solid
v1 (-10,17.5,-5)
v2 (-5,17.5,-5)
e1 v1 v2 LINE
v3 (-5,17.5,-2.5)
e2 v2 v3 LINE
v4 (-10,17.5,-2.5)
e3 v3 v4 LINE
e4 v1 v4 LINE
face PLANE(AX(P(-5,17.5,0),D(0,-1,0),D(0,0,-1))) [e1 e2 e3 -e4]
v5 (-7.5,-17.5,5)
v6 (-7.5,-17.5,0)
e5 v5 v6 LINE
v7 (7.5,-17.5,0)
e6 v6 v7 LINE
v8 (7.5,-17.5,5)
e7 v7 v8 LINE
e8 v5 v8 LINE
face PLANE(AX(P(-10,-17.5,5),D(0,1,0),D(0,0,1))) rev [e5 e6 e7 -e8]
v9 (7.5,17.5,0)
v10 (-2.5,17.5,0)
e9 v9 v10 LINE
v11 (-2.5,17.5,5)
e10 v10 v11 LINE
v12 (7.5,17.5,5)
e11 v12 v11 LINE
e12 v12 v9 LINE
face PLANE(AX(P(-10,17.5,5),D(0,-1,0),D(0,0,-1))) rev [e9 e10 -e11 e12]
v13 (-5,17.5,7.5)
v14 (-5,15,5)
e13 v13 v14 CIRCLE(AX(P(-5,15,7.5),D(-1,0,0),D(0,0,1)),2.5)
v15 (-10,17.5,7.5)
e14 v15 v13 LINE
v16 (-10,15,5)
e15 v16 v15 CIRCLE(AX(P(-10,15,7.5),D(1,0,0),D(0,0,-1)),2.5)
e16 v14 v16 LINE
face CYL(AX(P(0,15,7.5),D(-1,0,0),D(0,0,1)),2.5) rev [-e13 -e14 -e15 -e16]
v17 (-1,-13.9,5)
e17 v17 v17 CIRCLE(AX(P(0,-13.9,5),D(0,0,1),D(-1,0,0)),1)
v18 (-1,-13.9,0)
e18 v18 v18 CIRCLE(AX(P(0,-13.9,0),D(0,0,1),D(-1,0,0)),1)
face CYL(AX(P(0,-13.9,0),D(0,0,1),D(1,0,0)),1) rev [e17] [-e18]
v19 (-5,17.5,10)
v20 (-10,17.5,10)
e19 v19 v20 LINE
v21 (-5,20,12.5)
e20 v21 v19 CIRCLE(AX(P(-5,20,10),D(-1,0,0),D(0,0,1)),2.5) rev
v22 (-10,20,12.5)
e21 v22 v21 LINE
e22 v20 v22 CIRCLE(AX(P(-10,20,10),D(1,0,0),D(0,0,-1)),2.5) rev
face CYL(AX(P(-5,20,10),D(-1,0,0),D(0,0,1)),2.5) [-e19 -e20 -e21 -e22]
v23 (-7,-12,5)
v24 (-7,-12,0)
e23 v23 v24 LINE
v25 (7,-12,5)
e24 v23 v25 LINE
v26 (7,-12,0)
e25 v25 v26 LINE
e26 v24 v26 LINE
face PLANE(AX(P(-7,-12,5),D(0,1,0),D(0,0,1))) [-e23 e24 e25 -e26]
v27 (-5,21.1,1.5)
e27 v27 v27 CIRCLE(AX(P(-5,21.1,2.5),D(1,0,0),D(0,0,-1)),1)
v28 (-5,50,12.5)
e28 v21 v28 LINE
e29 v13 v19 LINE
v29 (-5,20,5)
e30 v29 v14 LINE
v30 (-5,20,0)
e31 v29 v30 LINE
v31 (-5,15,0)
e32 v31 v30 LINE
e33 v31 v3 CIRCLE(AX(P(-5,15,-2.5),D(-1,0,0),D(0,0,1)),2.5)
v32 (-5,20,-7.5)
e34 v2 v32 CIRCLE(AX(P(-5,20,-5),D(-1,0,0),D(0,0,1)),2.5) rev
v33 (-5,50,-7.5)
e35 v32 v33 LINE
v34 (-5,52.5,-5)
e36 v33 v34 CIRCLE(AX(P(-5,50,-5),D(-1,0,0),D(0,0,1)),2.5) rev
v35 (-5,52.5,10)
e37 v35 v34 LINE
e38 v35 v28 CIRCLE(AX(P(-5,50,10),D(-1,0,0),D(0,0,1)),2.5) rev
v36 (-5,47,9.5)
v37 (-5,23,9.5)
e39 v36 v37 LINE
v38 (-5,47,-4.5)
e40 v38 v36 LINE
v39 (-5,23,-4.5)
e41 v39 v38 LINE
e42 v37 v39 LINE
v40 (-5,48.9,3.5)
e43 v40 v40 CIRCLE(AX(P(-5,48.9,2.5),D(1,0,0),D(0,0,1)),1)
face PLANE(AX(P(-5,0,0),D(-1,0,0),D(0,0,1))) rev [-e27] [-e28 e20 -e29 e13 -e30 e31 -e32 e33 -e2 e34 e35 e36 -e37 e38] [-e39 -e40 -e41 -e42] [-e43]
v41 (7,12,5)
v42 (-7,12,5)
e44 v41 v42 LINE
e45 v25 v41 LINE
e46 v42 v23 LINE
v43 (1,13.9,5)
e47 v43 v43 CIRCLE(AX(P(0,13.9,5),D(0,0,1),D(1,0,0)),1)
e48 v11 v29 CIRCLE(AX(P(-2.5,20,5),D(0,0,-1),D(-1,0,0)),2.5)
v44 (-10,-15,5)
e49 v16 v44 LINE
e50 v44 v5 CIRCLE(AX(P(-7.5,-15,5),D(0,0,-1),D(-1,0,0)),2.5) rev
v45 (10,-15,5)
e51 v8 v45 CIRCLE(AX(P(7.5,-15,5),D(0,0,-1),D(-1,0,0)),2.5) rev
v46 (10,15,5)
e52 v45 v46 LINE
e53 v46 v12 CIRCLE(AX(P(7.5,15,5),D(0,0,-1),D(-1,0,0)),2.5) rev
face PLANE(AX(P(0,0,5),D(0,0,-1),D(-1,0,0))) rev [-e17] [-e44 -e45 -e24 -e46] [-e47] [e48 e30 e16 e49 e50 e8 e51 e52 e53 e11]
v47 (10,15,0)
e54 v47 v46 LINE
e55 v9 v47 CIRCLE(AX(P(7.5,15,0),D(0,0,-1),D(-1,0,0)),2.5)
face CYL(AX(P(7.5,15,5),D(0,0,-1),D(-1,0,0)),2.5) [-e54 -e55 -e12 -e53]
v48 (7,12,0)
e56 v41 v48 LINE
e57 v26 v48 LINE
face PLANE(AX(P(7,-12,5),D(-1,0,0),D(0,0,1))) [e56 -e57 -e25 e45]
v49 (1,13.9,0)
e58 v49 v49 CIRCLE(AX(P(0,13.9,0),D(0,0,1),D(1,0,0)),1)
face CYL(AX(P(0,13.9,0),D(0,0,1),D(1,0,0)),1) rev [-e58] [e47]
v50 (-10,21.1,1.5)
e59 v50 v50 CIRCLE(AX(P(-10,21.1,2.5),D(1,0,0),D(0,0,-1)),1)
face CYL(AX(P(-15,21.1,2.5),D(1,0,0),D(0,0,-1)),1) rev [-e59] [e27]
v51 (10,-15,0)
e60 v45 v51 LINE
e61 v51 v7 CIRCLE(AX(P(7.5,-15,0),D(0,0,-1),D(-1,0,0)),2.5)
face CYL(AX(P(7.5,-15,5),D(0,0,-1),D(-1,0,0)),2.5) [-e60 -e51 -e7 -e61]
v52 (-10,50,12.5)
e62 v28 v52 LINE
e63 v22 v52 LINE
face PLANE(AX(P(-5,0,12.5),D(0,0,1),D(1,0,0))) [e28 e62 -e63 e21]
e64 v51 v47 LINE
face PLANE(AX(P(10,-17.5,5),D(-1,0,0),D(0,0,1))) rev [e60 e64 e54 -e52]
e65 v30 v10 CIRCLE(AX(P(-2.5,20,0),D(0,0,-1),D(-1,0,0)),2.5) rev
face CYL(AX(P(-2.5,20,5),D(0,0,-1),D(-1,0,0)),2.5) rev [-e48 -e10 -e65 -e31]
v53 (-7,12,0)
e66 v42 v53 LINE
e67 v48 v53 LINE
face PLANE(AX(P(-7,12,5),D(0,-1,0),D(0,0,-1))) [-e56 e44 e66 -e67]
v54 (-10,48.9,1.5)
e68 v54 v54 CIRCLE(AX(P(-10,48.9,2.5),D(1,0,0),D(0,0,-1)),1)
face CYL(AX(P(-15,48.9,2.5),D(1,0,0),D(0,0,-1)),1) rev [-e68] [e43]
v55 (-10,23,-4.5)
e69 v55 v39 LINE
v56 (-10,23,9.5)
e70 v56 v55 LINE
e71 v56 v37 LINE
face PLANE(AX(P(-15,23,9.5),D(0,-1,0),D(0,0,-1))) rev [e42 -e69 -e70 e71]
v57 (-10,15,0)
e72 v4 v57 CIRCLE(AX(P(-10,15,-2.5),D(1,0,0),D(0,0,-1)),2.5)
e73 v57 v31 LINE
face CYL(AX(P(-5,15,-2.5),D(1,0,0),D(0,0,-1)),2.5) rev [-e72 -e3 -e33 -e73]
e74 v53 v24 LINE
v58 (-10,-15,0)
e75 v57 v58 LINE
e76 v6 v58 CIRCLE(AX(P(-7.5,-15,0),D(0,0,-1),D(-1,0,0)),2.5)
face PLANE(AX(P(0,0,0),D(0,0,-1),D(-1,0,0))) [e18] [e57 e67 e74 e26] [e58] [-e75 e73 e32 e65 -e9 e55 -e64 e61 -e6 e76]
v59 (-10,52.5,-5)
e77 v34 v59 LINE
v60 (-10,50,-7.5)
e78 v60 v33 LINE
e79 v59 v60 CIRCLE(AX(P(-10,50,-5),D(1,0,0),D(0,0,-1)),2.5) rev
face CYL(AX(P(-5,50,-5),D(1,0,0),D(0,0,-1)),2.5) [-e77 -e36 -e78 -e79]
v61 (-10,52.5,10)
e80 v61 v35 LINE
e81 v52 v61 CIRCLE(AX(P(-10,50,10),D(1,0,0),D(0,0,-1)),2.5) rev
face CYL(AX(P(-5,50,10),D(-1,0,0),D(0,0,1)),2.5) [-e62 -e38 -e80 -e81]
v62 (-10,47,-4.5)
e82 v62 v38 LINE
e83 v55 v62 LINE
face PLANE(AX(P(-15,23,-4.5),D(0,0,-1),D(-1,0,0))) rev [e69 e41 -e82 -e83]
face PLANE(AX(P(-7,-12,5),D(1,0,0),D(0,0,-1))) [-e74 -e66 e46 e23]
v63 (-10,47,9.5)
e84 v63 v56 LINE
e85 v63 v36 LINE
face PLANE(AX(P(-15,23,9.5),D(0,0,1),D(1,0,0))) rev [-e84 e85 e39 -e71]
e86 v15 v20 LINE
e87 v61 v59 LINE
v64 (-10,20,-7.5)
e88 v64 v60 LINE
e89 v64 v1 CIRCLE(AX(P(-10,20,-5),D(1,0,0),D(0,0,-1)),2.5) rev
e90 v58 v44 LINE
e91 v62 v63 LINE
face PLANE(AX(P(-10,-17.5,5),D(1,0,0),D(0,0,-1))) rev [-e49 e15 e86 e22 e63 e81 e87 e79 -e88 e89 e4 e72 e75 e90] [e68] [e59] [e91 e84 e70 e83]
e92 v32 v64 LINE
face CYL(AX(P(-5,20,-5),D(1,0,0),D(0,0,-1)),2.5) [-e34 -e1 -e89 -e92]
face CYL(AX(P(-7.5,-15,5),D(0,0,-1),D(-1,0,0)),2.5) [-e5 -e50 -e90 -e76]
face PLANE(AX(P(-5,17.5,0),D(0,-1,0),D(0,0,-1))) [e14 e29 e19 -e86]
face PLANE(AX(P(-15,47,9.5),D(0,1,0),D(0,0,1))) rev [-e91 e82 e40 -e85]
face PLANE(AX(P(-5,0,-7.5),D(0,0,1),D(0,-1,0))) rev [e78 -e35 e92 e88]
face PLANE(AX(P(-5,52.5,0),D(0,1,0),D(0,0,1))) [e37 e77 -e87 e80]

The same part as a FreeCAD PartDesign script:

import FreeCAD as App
import Part
import Sketcher

V = App.Vector
Q = App.Units.Quantity


def edges_at(feature, points):
    """Names of the edges that pass closest to the given points."""
    edges = feature.Shape.Edges
    near = lambda p: min(range(len(edges)), key=lambda i: edges[i].distToShape(Part.Vertex(*p))[0])
    return sorted({f"Edge{near(p) + 1}" for p in points})

doc = App.newDocument("Part")
body = doc.addObject("PartDesign::Body", "Body")

sketch1 = doc.addObject("Sketcher::SketchObject", "Sketch")
body.addObject(sketch1)
sketch1.AttachmentSupport = (doc.XY_Plane, [""])
sketch1.MapMode = "FlatFace"
sketch1.addGeometry(Part.LineSegment(V(-10, 18, 0), V(-10, -18, 0)), False)
sketch1.addGeometry(Part.LineSegment(V(-10, -18, 0), V(10, -18, 0)), False)
sketch1.addGeometry(Part.LineSegment(V(10, -18, 0), V(10, 18, 0)), False)
sketch1.addGeometry(Part.LineSegment(V(10, 18, 0), V(-10, 18, 0)), False)
sketch1.addGeometry(Part.LineSegment(V(7, -12, 0), V(-7, -12, 0)), False)
sketch1.addGeometry(Part.LineSegment(V(-7, -12, 0), V(-7, 12, 0)), False)
sketch1.addGeometry(Part.LineSegment(V(-7, 12, 0), V(7, 12, 0)), False)
sketch1.addGeometry(Part.LineSegment(V(7, 12, 0), V(7, -12, 0)), False)
sketch1.addConstraint(Sketcher.Constraint("Coincident", 0, 2, 1, 1))
sketch1.addConstraint(Sketcher.Constraint("Coincident", 1, 2, 2, 1))
sketch1.addConstraint(Sketcher.Constraint("Coincident", 2, 2, 3, 1))
sketch1.addConstraint(Sketcher.Constraint("Coincident", 3, 2, 0, 1))
sketch1.addConstraint(Sketcher.Constraint("Coincident", 4, 2, 5, 1))
sketch1.addConstraint(Sketcher.Constraint("Coincident", 5, 2, 6, 1))
sketch1.addConstraint(Sketcher.Constraint("Coincident", 6, 2, 7, 1))
sketch1.addConstraint(Sketcher.Constraint("Coincident", 7, 2, 4, 1))
sketch1.addConstraint(Sketcher.Constraint("Vertical", 0))
sketch1.addConstraint(Sketcher.Constraint("Horizontal", 1))
sketch1.addConstraint(Sketcher.Constraint("Vertical", 2))
sketch1.addConstraint(Sketcher.Constraint("Horizontal", 3))
sketch1.addConstraint(Sketcher.Constraint("Horizontal", 4))
sketch1.addConstraint(Sketcher.Constraint("Vertical", 5))
sketch1.addConstraint(Sketcher.Constraint("Horizontal", 6))
sketch1.addConstraint(Sketcher.Constraint("Vertical", 7))
sketch1.addConstraint(Sketcher.Constraint("Symmetric", 0, 2, 2, 2, -1, 1))
sketch1.addConstraint(Sketcher.Constraint("Symmetric", 4, 2, 6, 2, -1, 1))
sketch1.addConstraint(Sketcher.Constraint("DistanceX", 1, 1, 1, 2, Q("20 mm")))
sketch1.addConstraint(Sketcher.Constraint("DistanceX", 4, 2, 4, 1, Q("14 mm")))
sketch1.addConstraint(Sketcher.Constraint("DistanceY", 0, 2, 0, 1, Q("35 mm")))
sketch1.addConstraint(Sketcher.Constraint("DistanceY", 5, 1, 5, 2, Q("24 mm")))
pad1 = doc.addObject("PartDesign::Pad", "Pad")
body.addObject(pad1)
pad1.Profile = sketch1
pad1.Length = 5

sketch2 = doc.addObject("Sketcher::SketchObject", "Sketch001")
body.addObject(sketch2)
sketch2.AttachmentSupport = (doc.XY_Plane, [""])
sketch2.MapMode = "FlatFace"
sketch2.AttachmentOffset = App.Placement(V(0, 0, 5), App.Rotation())
sketch2.addGeometry(Part.Circle(V(0, 13.9, 0), V(0, 0, 1), 1), False)
sketch2.addGeometry(Part.Circle(V(0, -13.9, 0), V(0, 0, 1), 1), False)
sketch2.addConstraint(Sketcher.Constraint("Equal", 0, 1))
sketch2.addConstraint(Sketcher.Constraint("Symmetric", 0, 3, 1, 3, -1, 1))
sketch2.addConstraint(Sketcher.Constraint("PointOnObject", 0, 3, -2))
sketch2.addConstraint(Sketcher.Constraint("Diameter", 0, Q("2 mm")))
sketch2.addConstraint(Sketcher.Constraint("DistanceY", -1, 1, 0, 3, Q("13.9 mm")))
pocket1 = doc.addObject("PartDesign::Pocket", "Pocket")
body.addObject(pocket1)
pocket1.Profile = sketch2
pocket1.Length = 5

sketch3 = doc.addObject("Sketcher::SketchObject", "Sketch002")
body.addObject(sketch3)
sketch3.AttachmentSupport = (doc.YZ_Plane, [""])
sketch3.MapMode = "FlatFace"
sketch3.AttachmentOffset = App.Placement(V(0, 0, -10), App.Rotation())
sketch3.addGeometry(Part.LineSegment(V(52, -8, 0), V(18, -8, 0)), False)
sketch3.addGeometry(Part.LineSegment(V(18, -8, 0), V(18, 12, 0)), False)
sketch3.addGeometry(Part.LineSegment(V(18, 12, 0), V(52, 12, 0)), False)
sketch3.addGeometry(Part.LineSegment(V(52, 12, 0), V(52, -8, 0)), False)
sketch3.addConstraint(Sketcher.Constraint("Coincident", 0, 2, 1, 1))
sketch3.addConstraint(Sketcher.Constraint("Coincident", 1, 2, 2, 1))
sketch3.addConstraint(Sketcher.Constraint("Coincident", 2, 2, 3, 1))
sketch3.addConstraint(Sketcher.Constraint("Coincident", 3, 2, 0, 1))
sketch3.addConstraint(Sketcher.Constraint("Horizontal", 0))
sketch3.addConstraint(Sketcher.Constraint("Vertical", 1))
sketch3.addConstraint(Sketcher.Constraint("Horizontal", 2))
sketch3.addConstraint(Sketcher.Constraint("Vertical", 3))
sketch3.addConstraint(Sketcher.Constraint("DistanceX", 0, 2, 0, 1, Q("35 mm")))
sketch3.addConstraint(Sketcher.Constraint("DistanceY", 1, 1, 1, 2, Q("20 mm")))
sketch3.addConstraint(Sketcher.Constraint("DistanceX", -1, 1, 0, 2, Q("17.5 mm")))
sketch3.addConstraint(Sketcher.Constraint("DistanceY", 0, 2, -1, 1, Q("7.5 mm")))
pad2 = doc.addObject("PartDesign::Pad", "Pad001")
body.addObject(pad2)
pad2.Profile = sketch3
pad2.Length = 5
doc.recompute()

fillet = doc.addObject("PartDesign::Fillet", "Fillet")
body.addObject(fillet)
fillet.Base = (pad2, edges_at(pad2, [(-7.5, 17.5, 0), (-7.5, 17.5, 5)]))
fillet.Radius = 2.5
doc.recompute()

fillet2 = doc.addObject("PartDesign::Fillet", "Fillet001")
body.addObject(fillet2)
fillet2.Base = (fillet, edges_at(fillet, [
    (-5, 17.5, 2.5),
    (-7.5, 17.5, 12.5),
    (-7.5, 17.5, -7.5),
    (-7.5, 52.5, -7.5),
    (-7.5, 52.5, 12.5),
    (10, -17.5, 2.5),
    (-10, -17.5, 2.5),
    (10, 17.5, 2.5),
]))
fillet2.Radius = 2.5

sketch4 = doc.addObject("Sketcher::SketchObject", "Sketch003")
body.addObject(sketch4)
sketch4.AttachmentSupport = (doc.YZ_Plane, [""])
sketch4.MapMode = "FlatFace"
sketch4.AttachmentOffset = App.Placement(V(0, 0, -5), App.Rotation())
sketch4.addGeometry(Part.Circle(V(21.1, 2.5, 0), V(0, 0, 1), 1), False)
sketch4.addGeometry(Part.Circle(V(48.9, 2.5, 0), V(0, 0, 1), 1), False)
sketch4.addGeometry(Part.LineSegment(V(47, 9.5, 0), V(23, 9.5, 0)), False)
sketch4.addGeometry(Part.LineSegment(V(23, 9.5, 0), V(23, -4.5, 0)), False)
sketch4.addGeometry(Part.LineSegment(V(23, -4.5, 0), V(47, -4.5, 0)), False)
sketch4.addGeometry(Part.LineSegment(V(47, -4.5, 0), V(47, 9.5, 0)), False)
sketch4.addConstraint(Sketcher.Constraint("Coincident", 2, 2, 3, 1))
sketch4.addConstraint(Sketcher.Constraint("Coincident", 3, 2, 4, 1))
sketch4.addConstraint(Sketcher.Constraint("Coincident", 4, 2, 5, 1))
sketch4.addConstraint(Sketcher.Constraint("Coincident", 5, 2, 2, 1))
sketch4.addConstraint(Sketcher.Constraint("Horizontal", 2))
sketch4.addConstraint(Sketcher.Constraint("Vertical", 3))
sketch4.addConstraint(Sketcher.Constraint("Horizontal", 4))
sketch4.addConstraint(Sketcher.Constraint("Vertical", 5))
sketch4.addConstraint(Sketcher.Constraint("Equal", 0, 1))
sketch4.addConstraint(Sketcher.Constraint("Horizontal", 0, 3, 1, 3))
sketch4.addConstraint(Sketcher.Constraint("Diameter", 0, Q("2 mm")))
sketch4.addConstraint(Sketcher.Constraint("DistanceX", 2, 2, 2, 1, Q("24 mm")))
sketch4.addConstraint(Sketcher.Constraint("DistanceY", 3, 2, 3, 1, Q("14 mm")))
sketch4.addConstraint(Sketcher.Constraint("DistanceX", -1, 1, 2, 2, Q("23 mm")))
sketch4.addConstraint(Sketcher.Constraint("DistanceY", 0, 3, 2, 2, Q("7 mm")))
sketch4.addConstraint(Sketcher.Constraint("DistanceX", -1, 1, 0, 3, Q("21.1 mm")))
sketch4.addConstraint(Sketcher.Constraint("DistanceY", -1, 1, 0, 3, Q("2.5 mm")))
sketch4.addConstraint(Sketcher.Constraint("DistanceX", -1, 1, 1, 3, Q("48.9 mm")))
pocket2 = doc.addObject("PartDesign::Pocket", "Pocket001")
body.addObject(pocket2)
pocket2.Profile = sketch4
pocket2.Length = 10

doc.recompute()
